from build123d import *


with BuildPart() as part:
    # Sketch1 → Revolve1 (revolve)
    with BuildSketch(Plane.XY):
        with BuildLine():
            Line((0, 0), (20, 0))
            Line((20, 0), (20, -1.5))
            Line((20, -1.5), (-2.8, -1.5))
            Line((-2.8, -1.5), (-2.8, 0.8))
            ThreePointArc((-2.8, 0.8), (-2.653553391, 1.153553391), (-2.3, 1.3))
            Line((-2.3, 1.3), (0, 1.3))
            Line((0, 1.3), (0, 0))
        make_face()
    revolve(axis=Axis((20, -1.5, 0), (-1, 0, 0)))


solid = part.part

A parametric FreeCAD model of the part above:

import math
import FreeCAD as App
import Part
import Sketcher
from FreeCAD import Vector

doc = App.newDocument("Part")
params = doc.addObject("Spreadsheet::Sheet", "Params")
for row, (alias, value) in enumerate([
    ("sketch1_radius", "0.5 mm"),
    ("sketch1_width", "20 mm"),
    ("sketch1_width2", "2.3 mm"),
    ("sketch1_height", "1.3 mm"),
    ("revolution_angle", "360 deg"),
], start=1):
    params.set(f"A{row}", alias)
    params.set(f"B{row}", "=" + value)
    params.setAlias(f"B{row}", alias)

body = doc.addObject("PartDesign::Body", "Body")

# Sketch on XY plane
sketch1 = body.newObject("Sketcher::SketchObject", "Sketch")
sketch1.AttachmentSupport = (doc.getObject("XY_Plane"), [""])
sketch1.MapMode = "FlatFace"
sketch1.addGeometry([
    Part.LineSegment(Vector(20, 0, 0), Vector(0, 0, 0)),  # 0
    Part.LineSegment(Vector(0, 0, 0), Vector(0, 1.3, 0)),  # 1
    Part.LineSegment(Vector(0, 1.3, 0), Vector(-2.3, 1.3, 0)),  # 2
    Part.ArcOfCircle(Part.Circle(Vector(-2.3, 0.8, 0), Vector(0, 0, 1), 0.5), math.radians(90), math.radians(180)),  # 3
    Part.LineSegment(Vector(-2.8, 0.8, 0), Vector(-2.8, -1.5, 0)),  # 4
    Part.LineSegment(Vector(-2.8, -1.5, 0), Vector(20, -1.5, 0)),  # 5
    Part.LineSegment(Vector(20, -1.5, 0), Vector(20, 0, 0)),  # 6
], False)
sketch1.addGeometry(Part.LineSegment(Vector(20, -1.5, 0), Vector(-2.8, -1.5, 0)), True)  # axis
sketch1.addConstraint([
    Sketcher.Constraint("Coincident", 0, 2, 1, 1),
    Sketcher.Constraint("Coincident", 1, 2, 2, 1),
    Sketcher.Constraint("Tangent", 2, 2, 3, 1),
    Sketcher.Constraint("Tangent", 3, 2, 4, 1),
    Sketcher.Constraint("Coincident", 4, 2, 5, 1),
    Sketcher.Constraint("Coincident", 5, 2, 6, 1),
    Sketcher.Constraint("Coincident", 6, 2, 0, 1),
    Sketcher.Constraint("Horizontal", 0),
    Sketcher.Constraint("Vertical", 1),
    Sketcher.Constraint("Horizontal", 2),
    Sketcher.Constraint("Vertical", 4),
    Sketcher.Constraint("Horizontal", 5),
    Sketcher.Constraint("Vertical", 6),
    Sketcher.Constraint("Horizontal", 7),
    Sketcher.Constraint("Coincident", 0, 2, -1, 1),
    Sketcher.Constraint("Coincident", 7, 1, 5, 2),
    Sketcher.Constraint("Vertical", 3, 2, 7, 2),
    Sketcher.Constraint("Equal", 2, 4),
    Sketcher.Constraint("Radius", 3, 0.5),
    Sketcher.Constraint("DistanceX", 0, 2, 0, 1, 20.0),
    Sketcher.Constraint("DistanceX", 2, 2, 2, 1, 2.3),
    Sketcher.Constraint("DistanceY", 1, 1, 1, 2, 1.3),
])
sketch1.setExpression("Constraints[18]", "Params.sketch1_radius")
sketch1.setExpression("Constraints[19]", "Params.sketch1_width")
sketch1.setExpression("Constraints[20]", "Params.sketch1_width2")
sketch1.setExpression("Constraints[21]", "Params.sketch1_height")
revolution = body.newObject("PartDesign::Revolution", "Revolution")
revolution.Profile = sketch1
revolution.ReferenceAxis = (sketch1, ["Axis0"])
revolution.setExpression("Angle", "Params.revolution_angle")

doc.recompute()
